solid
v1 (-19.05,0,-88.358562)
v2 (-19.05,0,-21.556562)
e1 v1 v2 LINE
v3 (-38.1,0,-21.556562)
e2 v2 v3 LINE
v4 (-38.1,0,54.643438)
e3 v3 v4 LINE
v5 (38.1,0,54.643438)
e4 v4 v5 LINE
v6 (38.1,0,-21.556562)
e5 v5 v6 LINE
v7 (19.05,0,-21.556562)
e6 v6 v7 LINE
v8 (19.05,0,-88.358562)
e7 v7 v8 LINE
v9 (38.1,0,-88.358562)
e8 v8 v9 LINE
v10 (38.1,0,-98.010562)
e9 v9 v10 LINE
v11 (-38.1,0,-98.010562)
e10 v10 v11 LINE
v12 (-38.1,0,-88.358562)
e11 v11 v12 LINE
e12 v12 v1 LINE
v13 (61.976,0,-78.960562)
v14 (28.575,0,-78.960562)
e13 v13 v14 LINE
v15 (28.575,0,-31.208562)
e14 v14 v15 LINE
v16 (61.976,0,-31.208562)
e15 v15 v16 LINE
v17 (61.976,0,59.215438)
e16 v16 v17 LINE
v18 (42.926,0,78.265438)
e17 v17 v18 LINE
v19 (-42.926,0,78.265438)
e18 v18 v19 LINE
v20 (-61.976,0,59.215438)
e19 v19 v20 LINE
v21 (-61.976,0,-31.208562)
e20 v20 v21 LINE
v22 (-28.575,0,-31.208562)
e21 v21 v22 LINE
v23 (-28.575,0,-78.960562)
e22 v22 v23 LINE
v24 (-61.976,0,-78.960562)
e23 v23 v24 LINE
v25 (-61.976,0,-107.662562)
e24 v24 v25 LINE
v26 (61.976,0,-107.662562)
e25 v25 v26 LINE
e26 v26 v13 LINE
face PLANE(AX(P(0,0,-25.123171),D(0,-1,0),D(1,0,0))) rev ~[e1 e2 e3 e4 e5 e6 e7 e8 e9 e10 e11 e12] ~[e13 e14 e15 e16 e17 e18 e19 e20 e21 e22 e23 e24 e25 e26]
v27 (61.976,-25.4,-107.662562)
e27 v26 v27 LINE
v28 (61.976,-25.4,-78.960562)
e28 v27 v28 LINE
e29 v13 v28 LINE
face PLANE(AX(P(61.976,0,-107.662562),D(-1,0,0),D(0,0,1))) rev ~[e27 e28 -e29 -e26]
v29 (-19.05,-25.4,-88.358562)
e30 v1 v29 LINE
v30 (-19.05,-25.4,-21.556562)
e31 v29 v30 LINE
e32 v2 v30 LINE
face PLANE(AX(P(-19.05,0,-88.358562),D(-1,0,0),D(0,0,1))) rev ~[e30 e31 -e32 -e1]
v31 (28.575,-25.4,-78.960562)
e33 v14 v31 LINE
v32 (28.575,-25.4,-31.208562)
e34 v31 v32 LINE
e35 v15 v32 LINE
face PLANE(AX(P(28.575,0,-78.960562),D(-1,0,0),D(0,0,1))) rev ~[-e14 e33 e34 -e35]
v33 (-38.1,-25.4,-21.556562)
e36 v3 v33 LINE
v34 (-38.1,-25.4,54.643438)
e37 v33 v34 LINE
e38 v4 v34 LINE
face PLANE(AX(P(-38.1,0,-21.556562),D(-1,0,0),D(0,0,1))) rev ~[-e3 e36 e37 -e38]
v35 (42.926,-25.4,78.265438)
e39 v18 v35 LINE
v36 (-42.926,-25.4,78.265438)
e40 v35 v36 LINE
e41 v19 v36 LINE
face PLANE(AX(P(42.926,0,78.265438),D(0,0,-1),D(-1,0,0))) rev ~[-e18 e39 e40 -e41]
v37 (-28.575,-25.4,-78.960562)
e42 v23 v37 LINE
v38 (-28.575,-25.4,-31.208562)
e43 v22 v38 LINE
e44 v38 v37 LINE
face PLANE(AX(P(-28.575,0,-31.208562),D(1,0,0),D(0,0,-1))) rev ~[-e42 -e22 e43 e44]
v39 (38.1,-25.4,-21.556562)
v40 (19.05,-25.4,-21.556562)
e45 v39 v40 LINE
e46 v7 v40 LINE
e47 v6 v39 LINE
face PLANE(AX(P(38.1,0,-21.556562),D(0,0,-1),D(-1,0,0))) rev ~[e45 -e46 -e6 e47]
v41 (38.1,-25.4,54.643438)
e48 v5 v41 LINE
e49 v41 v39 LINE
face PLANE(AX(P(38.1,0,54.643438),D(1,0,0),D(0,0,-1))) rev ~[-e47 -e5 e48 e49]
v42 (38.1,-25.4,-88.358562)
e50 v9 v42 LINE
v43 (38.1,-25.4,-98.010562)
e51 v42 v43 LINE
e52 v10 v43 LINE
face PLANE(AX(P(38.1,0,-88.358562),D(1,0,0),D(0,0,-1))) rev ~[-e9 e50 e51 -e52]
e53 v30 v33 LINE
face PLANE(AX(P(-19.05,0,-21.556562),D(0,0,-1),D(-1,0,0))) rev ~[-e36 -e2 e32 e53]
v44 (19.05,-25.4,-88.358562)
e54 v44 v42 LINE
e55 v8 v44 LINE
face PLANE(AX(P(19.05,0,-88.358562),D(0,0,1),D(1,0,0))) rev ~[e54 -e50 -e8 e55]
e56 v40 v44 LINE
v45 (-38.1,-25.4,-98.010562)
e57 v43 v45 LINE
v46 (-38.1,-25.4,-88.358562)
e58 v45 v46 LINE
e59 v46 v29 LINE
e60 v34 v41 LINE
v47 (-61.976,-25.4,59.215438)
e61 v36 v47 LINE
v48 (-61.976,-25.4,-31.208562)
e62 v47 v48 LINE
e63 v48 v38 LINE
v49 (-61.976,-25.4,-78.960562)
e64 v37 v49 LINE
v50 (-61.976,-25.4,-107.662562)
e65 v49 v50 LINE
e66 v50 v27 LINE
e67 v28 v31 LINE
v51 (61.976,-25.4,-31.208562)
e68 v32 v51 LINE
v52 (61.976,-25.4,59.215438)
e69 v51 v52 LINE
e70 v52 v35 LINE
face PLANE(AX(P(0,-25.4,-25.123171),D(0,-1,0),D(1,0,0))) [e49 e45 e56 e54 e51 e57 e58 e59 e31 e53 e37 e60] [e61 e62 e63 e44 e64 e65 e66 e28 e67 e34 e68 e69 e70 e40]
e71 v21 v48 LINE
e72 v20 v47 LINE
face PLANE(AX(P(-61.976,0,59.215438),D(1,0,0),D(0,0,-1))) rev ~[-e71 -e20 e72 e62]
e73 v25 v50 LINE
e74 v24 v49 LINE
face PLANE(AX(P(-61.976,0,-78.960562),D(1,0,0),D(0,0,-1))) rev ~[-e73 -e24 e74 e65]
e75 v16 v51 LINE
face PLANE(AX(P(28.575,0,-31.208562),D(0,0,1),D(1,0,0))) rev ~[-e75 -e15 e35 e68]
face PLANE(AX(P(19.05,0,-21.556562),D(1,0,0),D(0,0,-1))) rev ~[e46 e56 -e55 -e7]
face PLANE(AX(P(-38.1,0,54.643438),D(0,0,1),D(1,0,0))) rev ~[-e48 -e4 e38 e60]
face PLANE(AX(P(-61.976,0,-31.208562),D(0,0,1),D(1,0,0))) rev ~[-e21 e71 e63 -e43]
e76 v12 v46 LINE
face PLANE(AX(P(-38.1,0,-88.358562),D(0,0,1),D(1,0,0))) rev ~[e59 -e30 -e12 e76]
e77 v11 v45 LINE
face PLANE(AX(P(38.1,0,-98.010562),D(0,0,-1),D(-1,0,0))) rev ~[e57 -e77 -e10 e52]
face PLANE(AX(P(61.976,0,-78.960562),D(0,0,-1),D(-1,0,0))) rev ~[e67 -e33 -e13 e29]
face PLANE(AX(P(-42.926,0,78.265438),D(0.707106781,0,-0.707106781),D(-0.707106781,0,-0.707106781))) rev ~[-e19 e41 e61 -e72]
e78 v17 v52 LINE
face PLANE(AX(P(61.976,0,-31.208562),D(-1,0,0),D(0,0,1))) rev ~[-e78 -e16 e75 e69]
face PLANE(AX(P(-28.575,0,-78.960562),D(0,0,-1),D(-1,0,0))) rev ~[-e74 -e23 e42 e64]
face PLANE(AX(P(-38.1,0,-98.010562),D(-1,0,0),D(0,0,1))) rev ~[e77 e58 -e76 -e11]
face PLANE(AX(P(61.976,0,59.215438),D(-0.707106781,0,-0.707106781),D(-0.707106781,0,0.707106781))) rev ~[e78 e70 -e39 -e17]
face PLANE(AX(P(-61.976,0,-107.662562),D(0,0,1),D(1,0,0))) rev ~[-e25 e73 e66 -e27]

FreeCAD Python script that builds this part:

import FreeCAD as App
import Part
import Sketcher

V = App.Vector
Q = App.Units.Quantity


def add_polygon(sketch, points):
    """Adds a closed chain of lines whose ends are joined by coincident constraints."""
    first, n = sketch.GeometryCount, len(points)
    for a, b in zip(points, points[1:] + points[:1]):
        sketch.addGeometry(Part.LineSegment(App.Vector(*a, 0), App.Vector(*b, 0)), False)
    for i in range(n):
        sketch.addConstraint(Sketcher.Constraint("Coincident", first + i, 2, first + (i + 1) % n, 1))

doc = App.newDocument("Part")
body = doc.addObject("PartDesign::Body", "Body")

sketch1 = body.newObject("Sketcher::SketchObject", "Sketch")
sketch1.AttachmentSupport = (doc.getObject("XZ_Plane"), [""])
sketch1.MapMode = "FlatFace"
add_polygon(sketch1, [(43, 78), (-43, 78), (-62, 59), (-62, -31), (-29, -31), (-29, -79), (-62, -79), (-62, -108), (62, -108), (62, -79), (29, -79), (29, -31), (62, -31), (62, 59)])
add_polygon(sketch1, [(-38, -22), (-38, 55), (38, 55), (38, -22), (19, -22), (19, -88), (38, -88), (38, -98), (-38, -98), (-38, -88), (-19, -88), (-19, -22)])
sketch1.addConstraint([
    Sketcher.Constraint("Horizontal", 0),
    Sketcher.Constraint("Vertical", 2),
    Sketcher.Constraint("Horizontal", 3),
    Sketcher.Constraint("Vertical", 4),
    Sketcher.Constraint("Horizontal", 5),
    Sketcher.Constraint("Vertical", 6),
    Sketcher.Constraint("Horizontal", 7),
    Sketcher.Constraint("Vertical", 8),
    Sketcher.Constraint("Horizontal", 9),
    Sketcher.Constraint("Vertical", 10),
    Sketcher.Constraint("Horizontal", 11),
    Sketcher.Constraint("Vertical", 12),
    Sketcher.Constraint("Vertical", 14),
    Sketcher.Constraint("Horizontal", 15),
    Sketcher.Constraint("Vertical", 16),
    Sketcher.Constraint("Horizontal", 17),
    Sketcher.Constraint("Vertical", 18),
    Sketcher.Constraint("Horizontal", 19),
    Sketcher.Constraint("Vertical", 20),
    Sketcher.Constraint("Horizontal", 21),
    Sketcher.Constraint("Vertical", 22),
    Sketcher.Constraint("Horizontal", 23),
    Sketcher.Constraint("Vertical", 24),
    Sketcher.Constraint("Horizontal", 25),
    Sketcher.Constraint("Symmetric", 5, 2, 8, 2, -2),
    Sketcher.Constraint("Symmetric", 3, 2, 10, 2, -2),
    Sketcher.Constraint("Symmetric", 1, 2, 12, 2, -2),
    Sketcher.Constraint("Symmetric", 19, 2, 22, 2, -2),
    Sketcher.Constraint("Symmetric", 17, 2, 24, 2, -2),
    Sketcher.Constraint("Perpendicular", 1, 13),
    Sketcher.Constraint("Vertical", 2, 2, 5, 2),
    Sketcher.Constraint("Vertical", 16, 2, 19, 2),
    Sketcher.Constraint("Vertical", 14, 2, 21, 2),
    Sketcher.Constraint("Equal", 21, 14),
    Sketcher.Constraint("Equal", 1, 13),
    Sketcher.Constraint("DistanceX", 15, 1, 15, 2, Q("3 in")),
    Sketcher.Constraint("DistanceX", 0, 2, 0, 1, Q("3.38 in")),
    Sketcher.Constraint("DistanceX", 7, 1, 7, 2, Q("4.88 in")),
    Sketcher.Constraint("DistanceX", 17, 2, 17, 1, Q("0.75 in")),
    Sketcher.Constraint("DistanceY", 2, 2, 2, 1, Q("3.56 in")),
    Sketcher.Constraint("DistanceY", 4, 2, 4, 1, Q("1.88 in")),
    Sketcher.Constraint("DistanceY", 6, 2, 6, 1, Q("1.13 in")),
    Sketcher.Constraint("DistanceY", 18, 2, 18, 1, Q("2.63 in")),
    Sketcher.Constraint("DistanceY", 20, 2, 20, 1, Q("0.38 in")),
    Sketcher.Constraint("DistanceX", 3, 1, 3, 2, Q("1.315 in")),
    Sketcher.Constraint("DistanceY", 14, 2, 0, 2, Q("0.93 in")),
    Sketcher.Constraint("DistanceY", -1, 1, 0, 2, 78.265438),
])
pad1 = body.newObject("PartDesign::Pad", "Pad")
pad1.Profile = sketch1
pad1.Length = Q("1 in")

doc.recompute()
